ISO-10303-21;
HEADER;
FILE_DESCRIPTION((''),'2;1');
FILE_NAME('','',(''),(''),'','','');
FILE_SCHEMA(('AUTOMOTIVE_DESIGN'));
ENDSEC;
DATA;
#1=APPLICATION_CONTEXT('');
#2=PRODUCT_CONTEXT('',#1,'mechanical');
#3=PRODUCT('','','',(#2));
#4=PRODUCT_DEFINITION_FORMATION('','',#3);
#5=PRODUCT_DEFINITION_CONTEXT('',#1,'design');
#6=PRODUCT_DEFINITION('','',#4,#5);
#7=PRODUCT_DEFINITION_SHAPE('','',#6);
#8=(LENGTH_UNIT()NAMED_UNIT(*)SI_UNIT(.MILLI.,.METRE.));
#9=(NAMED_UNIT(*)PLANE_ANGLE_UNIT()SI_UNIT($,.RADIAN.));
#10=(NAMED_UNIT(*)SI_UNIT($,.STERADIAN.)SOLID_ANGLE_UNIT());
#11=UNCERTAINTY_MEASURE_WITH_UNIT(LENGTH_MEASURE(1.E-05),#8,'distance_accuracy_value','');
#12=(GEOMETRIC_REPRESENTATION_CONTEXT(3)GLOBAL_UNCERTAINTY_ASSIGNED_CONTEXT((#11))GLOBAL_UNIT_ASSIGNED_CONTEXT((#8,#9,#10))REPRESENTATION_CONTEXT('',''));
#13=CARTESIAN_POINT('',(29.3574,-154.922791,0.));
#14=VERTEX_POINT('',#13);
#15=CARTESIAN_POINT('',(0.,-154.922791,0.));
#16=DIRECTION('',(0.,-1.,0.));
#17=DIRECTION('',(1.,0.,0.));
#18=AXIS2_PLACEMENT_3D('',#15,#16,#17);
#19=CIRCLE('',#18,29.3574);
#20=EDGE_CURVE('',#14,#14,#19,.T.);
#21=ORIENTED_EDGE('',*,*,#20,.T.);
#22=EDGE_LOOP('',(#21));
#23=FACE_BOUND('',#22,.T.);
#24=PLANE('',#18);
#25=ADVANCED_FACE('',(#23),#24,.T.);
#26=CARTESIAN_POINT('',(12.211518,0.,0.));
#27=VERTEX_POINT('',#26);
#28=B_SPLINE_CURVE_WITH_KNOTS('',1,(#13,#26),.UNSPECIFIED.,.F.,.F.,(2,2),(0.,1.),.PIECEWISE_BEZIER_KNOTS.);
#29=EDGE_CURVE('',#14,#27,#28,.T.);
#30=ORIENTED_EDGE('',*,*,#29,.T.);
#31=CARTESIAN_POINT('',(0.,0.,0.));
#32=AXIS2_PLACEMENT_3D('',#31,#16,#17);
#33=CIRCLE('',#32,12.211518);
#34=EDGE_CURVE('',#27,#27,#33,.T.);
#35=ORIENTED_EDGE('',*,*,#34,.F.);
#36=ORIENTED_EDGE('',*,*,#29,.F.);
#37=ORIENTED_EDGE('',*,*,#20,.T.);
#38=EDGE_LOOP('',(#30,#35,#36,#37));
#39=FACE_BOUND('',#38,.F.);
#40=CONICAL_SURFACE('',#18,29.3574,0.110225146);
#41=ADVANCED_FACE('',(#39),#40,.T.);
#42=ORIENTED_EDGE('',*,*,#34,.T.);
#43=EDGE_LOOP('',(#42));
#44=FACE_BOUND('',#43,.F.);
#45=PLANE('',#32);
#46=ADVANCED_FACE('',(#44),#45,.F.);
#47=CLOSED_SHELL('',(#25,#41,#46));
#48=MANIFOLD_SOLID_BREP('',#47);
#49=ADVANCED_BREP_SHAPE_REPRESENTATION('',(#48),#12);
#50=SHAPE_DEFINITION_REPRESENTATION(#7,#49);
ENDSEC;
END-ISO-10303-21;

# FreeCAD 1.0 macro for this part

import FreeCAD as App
import Part
import Sketcher
from FreeCAD import Vector
Q = App.Units.Quantity

doc = App.newDocument("Part")
body = doc.addObject("PartDesign::Body", "Body")

sketch1 = body.newObject("Sketcher::SketchObject", "Sketch")
sketch1.AttachmentSupport = (doc.getObject("XZ_Plane"), [""])
sketch1.MapMode = "FlatFace"
sketch1.AttachmentOffset = App.Placement(Vector(0, 0, 154.922791), App.Rotation())
sketch1.addGeometry(Part.Circle(Vector(0, 0, 0), Vector(0, 0, 1), 29), False)
sketch1.addConstraint([
    Sketcher.Constraint("Coincident", 0, 3, -1, 1),
    Sketcher.Constraint("Diameter", 0, Q("58.7148 mm")),
])

sketch2 = body.newObject("Sketcher::SketchObject", "Sketch001")
sketch2.AttachmentSupport = (doc.getObject("XZ_Plane"), [""])
sketch2.MapMode = "FlatFace"
sketch2.addGeometry(Part.Circle(Vector(0, 0, 0), Vector(0, 0, 1), 12), False)
sketch2.addConstraint([
    Sketcher.Constraint("Coincident", 0, 3, -1, 1),
    Sketcher.Constraint("Diameter", 0, Q("24.423036 mm")),
])

additiveloft = body.newObject("PartDesign::AdditiveLoft", "AdditiveLoft")
additiveloft.Profile = sketch1
additiveloft.Sections = [sketch2]

doc.recompute()
